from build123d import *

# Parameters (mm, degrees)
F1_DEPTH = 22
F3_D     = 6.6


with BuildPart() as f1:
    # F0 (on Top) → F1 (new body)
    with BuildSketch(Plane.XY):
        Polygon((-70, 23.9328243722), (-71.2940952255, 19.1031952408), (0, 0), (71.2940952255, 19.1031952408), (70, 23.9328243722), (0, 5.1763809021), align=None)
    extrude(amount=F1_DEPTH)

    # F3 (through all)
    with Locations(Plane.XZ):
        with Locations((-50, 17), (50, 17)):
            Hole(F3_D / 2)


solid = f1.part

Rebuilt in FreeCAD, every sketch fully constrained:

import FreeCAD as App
import Part
import Sketcher
Q = App.Units.Quantity

doc = App.newDocument("Part")
params = doc.addObject("Spreadsheet::Sheet", "Params")
for row, (alias, value) in enumerate([
    ("sketch1_length", "5 mm"),
    ("pad1_length", "22 mm"),
    ("sketch2_diameter", "6.6 mm"),
    ("hole_diameter", "6.6 mm"),
], start=1):
    params.set(f"A{row}", alias)
    params.set(f"B{row}", "=" + value)
    params.setAlias(f"B{row}", alias)

body = doc.addObject("PartDesign::Body", "Body")

# Sketch on XY plane
sketch1 = body.newObject("Sketcher::SketchObject", "Sketch")
sketch1.AttachmentSupport = (doc.getObject("XY_Plane"), [""])
sketch1.MapMode = "FlatFace"
sketch1.addGeometry([
    Part.LineSegment(App.Vector(-70, 23.9, 0), App.Vector(-71.3, 19.1, 0)),  # 0
    Part.LineSegment(App.Vector(-71.3, 19.1, 0), App.Vector(0, 0, 0)),  # 1
    Part.LineSegment(App.Vector(0, 0, 0), App.Vector(71.3, 19.1, 0)),  # 2
    Part.LineSegment(App.Vector(71.3, 19.1, 0), App.Vector(70, 23.9, 0)),  # 3
    Part.LineSegment(App.Vector(70, 23.9, 0), App.Vector(0, 5.2, 0)),  # 4
    Part.LineSegment(App.Vector(0, 5.2, 0), App.Vector(-70, 23.9, 0)),  # 5
], False)
sketch1.addConstraint([
    Sketcher.Constraint("Coincident", 0, 2, 1, 1),
    Sketcher.Constraint("Coincident", 1, 2, 2, 1),
    Sketcher.Constraint("Coincident", 2, 2, 3, 1),
    Sketcher.Constraint("Coincident", 3, 2, 4, 1),
    Sketcher.Constraint("Coincident", 4, 2, 5, 1),
    Sketcher.Constraint("Coincident", 5, 2, 0, 1),
    Sketcher.Constraint("Coincident", 1, 2, -1, 1),
    Sketcher.Constraint("Symmetric", 0, 2, 2, 2, -2),
    Sketcher.Constraint("Symmetric", 3, 2, 5, 2, -2),
    Sketcher.Constraint("PointOnObject", 4, 2, -2),
    Sketcher.Constraint("Perpendicular", 0, 1),
    Sketcher.Constraint("Perpendicular", 3, 4),
    Sketcher.Constraint("Angle", 0, Q("-105 deg")),
    Sketcher.Constraint("Distance", 0, 5.0),
    Sketcher.Constraint("DistanceX", -1, 1, 3, 2, 70.0),
])
sketch1.setExpression("Constraints[13]", "Params.sketch1_length")
pad1 = body.newObject("PartDesign::Pad", "Pad")
pad1.Profile = sketch1
pad1.setExpression("Length", "Params.pad1_length")

# Sketch on XZ plane
sketch2 = body.newObject("Sketcher::SketchObject", "Sketch001")
sketch2.AttachmentSupport = (doc.getObject("XZ_Plane"), [""])
sketch2.MapMode = "FlatFace"
sketch2.addGeometry([
    Part.Circle(App.Vector(-50, 17, 0), App.Vector(0, 0, 1), 3.3),
    Part.Circle(App.Vector(50, 17, 0), App.Vector(0, 0, 1), 3.3),
], False)
sketch2.addConstraint([
    Sketcher.Constraint("Equal", 0, 1),
    Sketcher.Constraint("Symmetric", 0, 3, 1, 3, -2),
    Sketcher.Constraint("Diameter", 0, 6.6),
    Sketcher.Constraint("DistanceX", 0, 3, -1, 1, 50.0),
    Sketcher.Constraint("DistanceY", -1, 1, 0, 3, 17.0),
])
sketch2.setExpression("Constraints[2]", "Params.sketch2_diameter")
doc.recompute()
hole = body.newObject("PartDesign::Hole", "Hole")
hole.Profile = sketch2
hole.ThreadType = "None"
hole.setExpression("Diameter", "Params.hole_diameter")
hole.DepthType = "ThroughAll"

doc.recompute()
